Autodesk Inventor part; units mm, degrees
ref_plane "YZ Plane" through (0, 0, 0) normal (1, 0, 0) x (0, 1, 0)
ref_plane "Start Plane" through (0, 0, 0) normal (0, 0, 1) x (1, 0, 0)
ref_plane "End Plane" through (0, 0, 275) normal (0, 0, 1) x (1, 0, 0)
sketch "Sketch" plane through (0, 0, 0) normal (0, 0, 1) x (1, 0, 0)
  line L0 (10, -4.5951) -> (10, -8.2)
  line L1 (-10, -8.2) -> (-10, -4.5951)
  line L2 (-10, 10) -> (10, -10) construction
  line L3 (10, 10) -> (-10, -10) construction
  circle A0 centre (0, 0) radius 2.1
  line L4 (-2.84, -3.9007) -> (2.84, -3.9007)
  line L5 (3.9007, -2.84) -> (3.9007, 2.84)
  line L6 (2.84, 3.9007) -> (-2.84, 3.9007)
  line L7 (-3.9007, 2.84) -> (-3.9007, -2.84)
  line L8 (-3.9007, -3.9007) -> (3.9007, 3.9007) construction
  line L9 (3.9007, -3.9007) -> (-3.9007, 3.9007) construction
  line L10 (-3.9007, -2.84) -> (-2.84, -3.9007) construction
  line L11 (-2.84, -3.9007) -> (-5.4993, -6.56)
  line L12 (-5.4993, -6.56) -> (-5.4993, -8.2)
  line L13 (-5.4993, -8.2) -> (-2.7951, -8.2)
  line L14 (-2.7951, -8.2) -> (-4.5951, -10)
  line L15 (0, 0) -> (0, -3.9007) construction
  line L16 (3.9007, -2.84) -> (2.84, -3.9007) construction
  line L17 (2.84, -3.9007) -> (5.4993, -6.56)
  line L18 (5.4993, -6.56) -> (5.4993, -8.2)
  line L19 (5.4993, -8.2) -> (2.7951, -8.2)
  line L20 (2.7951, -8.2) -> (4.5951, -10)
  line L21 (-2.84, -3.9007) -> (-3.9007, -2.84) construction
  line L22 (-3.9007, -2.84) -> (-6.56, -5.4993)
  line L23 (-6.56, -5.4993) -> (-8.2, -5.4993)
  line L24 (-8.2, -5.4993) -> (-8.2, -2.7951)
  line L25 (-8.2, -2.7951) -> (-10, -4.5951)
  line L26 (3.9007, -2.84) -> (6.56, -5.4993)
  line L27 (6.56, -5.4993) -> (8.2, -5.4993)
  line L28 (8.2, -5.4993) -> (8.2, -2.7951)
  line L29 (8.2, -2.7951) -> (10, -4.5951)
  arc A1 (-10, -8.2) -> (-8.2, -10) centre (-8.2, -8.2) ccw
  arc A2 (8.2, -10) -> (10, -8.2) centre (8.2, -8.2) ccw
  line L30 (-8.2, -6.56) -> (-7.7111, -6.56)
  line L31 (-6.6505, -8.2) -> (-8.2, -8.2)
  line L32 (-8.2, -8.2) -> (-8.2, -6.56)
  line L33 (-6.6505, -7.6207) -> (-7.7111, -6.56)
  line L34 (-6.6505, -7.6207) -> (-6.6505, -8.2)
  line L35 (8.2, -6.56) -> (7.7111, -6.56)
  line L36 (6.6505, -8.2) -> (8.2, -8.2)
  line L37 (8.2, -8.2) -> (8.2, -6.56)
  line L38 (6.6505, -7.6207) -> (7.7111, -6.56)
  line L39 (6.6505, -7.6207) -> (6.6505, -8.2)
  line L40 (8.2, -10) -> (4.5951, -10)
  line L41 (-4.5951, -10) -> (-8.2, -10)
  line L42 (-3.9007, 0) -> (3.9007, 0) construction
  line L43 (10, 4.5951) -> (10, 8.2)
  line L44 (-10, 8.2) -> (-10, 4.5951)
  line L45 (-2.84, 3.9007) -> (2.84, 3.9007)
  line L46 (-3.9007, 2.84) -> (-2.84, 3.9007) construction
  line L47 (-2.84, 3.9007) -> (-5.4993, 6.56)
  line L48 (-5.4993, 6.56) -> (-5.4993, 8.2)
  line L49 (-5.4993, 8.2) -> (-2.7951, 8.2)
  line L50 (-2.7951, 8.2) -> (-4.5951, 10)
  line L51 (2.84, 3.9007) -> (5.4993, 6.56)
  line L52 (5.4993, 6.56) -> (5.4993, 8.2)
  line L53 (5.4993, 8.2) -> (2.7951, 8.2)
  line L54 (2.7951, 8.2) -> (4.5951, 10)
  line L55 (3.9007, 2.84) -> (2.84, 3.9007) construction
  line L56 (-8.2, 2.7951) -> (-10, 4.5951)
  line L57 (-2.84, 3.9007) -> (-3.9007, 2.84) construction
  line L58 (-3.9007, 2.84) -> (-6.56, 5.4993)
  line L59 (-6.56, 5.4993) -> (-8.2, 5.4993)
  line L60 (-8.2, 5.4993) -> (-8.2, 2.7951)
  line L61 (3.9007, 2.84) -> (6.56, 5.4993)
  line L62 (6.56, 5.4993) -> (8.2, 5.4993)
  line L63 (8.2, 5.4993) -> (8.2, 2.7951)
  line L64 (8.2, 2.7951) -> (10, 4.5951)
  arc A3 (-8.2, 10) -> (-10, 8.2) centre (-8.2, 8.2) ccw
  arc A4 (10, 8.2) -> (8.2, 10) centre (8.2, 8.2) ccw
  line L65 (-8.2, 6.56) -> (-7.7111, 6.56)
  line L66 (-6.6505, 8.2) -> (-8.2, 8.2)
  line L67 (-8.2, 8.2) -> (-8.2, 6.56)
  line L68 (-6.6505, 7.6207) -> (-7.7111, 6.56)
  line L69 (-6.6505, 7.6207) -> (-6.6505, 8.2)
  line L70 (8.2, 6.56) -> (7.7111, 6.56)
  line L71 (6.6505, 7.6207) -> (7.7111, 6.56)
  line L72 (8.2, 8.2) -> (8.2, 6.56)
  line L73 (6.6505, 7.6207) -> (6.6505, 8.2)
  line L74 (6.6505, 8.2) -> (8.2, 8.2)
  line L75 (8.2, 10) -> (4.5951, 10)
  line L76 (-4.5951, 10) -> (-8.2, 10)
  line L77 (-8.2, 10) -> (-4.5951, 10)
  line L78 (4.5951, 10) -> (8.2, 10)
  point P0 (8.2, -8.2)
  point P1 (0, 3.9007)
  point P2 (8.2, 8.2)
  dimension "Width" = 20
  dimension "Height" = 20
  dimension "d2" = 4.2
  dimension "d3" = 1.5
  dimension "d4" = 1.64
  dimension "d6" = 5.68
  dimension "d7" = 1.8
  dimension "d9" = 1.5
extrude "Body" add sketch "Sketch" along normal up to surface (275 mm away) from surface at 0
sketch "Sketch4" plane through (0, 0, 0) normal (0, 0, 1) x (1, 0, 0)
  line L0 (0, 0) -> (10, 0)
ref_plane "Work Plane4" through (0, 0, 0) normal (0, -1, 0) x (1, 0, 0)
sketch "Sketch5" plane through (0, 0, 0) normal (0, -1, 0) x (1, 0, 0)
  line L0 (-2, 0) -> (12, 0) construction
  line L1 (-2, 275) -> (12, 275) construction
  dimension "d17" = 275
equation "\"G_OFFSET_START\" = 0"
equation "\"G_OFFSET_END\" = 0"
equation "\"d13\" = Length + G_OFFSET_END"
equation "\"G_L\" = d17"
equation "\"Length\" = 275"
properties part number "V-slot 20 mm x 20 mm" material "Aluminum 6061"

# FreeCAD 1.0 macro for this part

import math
import FreeCAD as App
import Part
import Sketcher

V = App.Vector

doc = App.newDocument("Part")
body = doc.addObject("PartDesign::Body", "Body")

# Sketch on XY plane
sketch1 = doc.addObject("Sketcher::SketchObject", "Sketch")
body.addObject(sketch1)
sketch1.AttachmentSupport = (doc.XY_Plane, [""])
sketch1.MapMode = "FlatFace"
sketch1.addGeometry([
    Part.LineSegment(V(10, -8.2, 0), V(10, -4.5951, 0)),  # 0
    Part.LineSegment(V(10, -4.5951, 0), V(8.2, -2.7951, 0)),  # 1
    Part.LineSegment(V(8.2, -2.7951, 0), V(8.2, -5.4993, 0)),  # 2
    Part.LineSegment(V(8.2, -5.4993, 0), V(6.56, -5.4993, 0)),  # 3
    Part.LineSegment(V(6.56, -5.4993, 0), V(3.9007, -2.84, 0)),  # 4
    Part.LineSegment(V(3.9007, -2.84, 0), V(3.9007, 2.84, 0)),  # 5
    Part.LineSegment(V(3.9007, 2.84, 0), V(6.56, 5.4993, 0)),  # 6
    Part.LineSegment(V(6.56, 5.4993, 0), V(8.2, 5.4993, 0)),  # 7
    Part.LineSegment(V(8.2, 5.4993, 0), V(8.2, 2.7951, 0)),  # 8
    Part.LineSegment(V(8.2, 2.7951, 0), V(10, 4.5951, 0)),  # 9
    Part.LineSegment(V(10, 4.5951, 0), V(10, 8.2, 0)),  # 10
    Part.ArcOfCircle(Part.Circle(V(8.2, 8.2, 0), V(0, 0, 1), 1.8), math.radians(0), math.radians(90)),  # 11
    Part.LineSegment(V(8.2, 10, 0), V(4.5951, 10, 0)),  # 12
    Part.LineSegment(V(4.5951, 10, 0), V(2.7951, 8.2, 0)),  # 13
    Part.LineSegment(V(2.7951, 8.2, 0), V(5.4993, 8.2, 0)),  # 14
    Part.LineSegment(V(5.4993, 8.2, 0), V(5.4993, 6.56, 0)),  # 15
    Part.LineSegment(V(5.4993, 6.56, 0), V(2.84, 3.9007, 0)),  # 16
    Part.LineSegment(V(2.84, 3.9007, 0), V(-2.84, 3.9007, 0)),  # 17
    Part.LineSegment(V(-2.84, 3.9007, 0), V(-5.4993, 6.56, 0)),  # 18
    Part.LineSegment(V(-5.4993, 6.56, 0), V(-5.4993, 8.2, 0)),  # 19
    Part.LineSegment(V(-5.4993, 8.2, 0), V(-2.7951, 8.2, 0)),  # 20
    Part.LineSegment(V(-2.7951, 8.2, 0), V(-4.5951, 10, 0)),  # 21
    Part.LineSegment(V(-4.5951, 10, 0), V(-8.2, 10, 0)),  # 22
    Part.ArcOfCircle(Part.Circle(V(-8.2, 8.2, 0), V(0, 0, 1), 1.8), math.radians(90), math.radians(180)),  # 23
    Part.LineSegment(V(-10, 8.2, 0), V(-10, 4.5951, 0)),  # 24
    Part.LineSegment(V(-10, 4.5951, 0), V(-8.2, 2.7951, 0)),  # 25
    Part.LineSegment(V(-8.2, 2.7951, 0), V(-8.2, 5.4993, 0)),  # 26
    Part.LineSegment(V(-8.2, 5.4993, 0), V(-6.56, 5.4993, 0)),  # 27
    Part.LineSegment(V(-6.56, 5.4993, 0), V(-3.9007, 2.84, 0)),  # 28
    Part.LineSegment(V(-3.9007, 2.84, 0), V(-3.9007, -2.84, 0)),  # 29
    Part.LineSegment(V(-3.9007, -2.84, 0), V(-6.56, -5.4993, 0)),  # 30
    Part.LineSegment(V(-6.56, -5.4993, 0), V(-8.2, -5.4993, 0)),  # 31
    Part.LineSegment(V(-8.2, -5.4993, 0), V(-8.2, -2.7951, 0)),  # 32
    Part.LineSegment(V(-8.2, -2.7951, 0), V(-10, -4.5951, 0)),  # 33
    Part.LineSegment(V(-10, -4.5951, 0), V(-10, -8.2, 0)),  # 34
    Part.ArcOfCircle(Part.Circle(V(-8.2, -8.2, 0), V(0, 0, 1), 1.8), math.radians(180), math.radians(270)),  # 35
    Part.LineSegment(V(-8.2, -10, 0), V(-4.5951, -10, 0)),  # 36
    Part.LineSegment(V(-4.5951, -10, 0), V(-2.7951, -8.2, 0)),  # 37
    Part.LineSegment(V(-2.7951, -8.2, 0), V(-5.4993, -8.2, 0)),  # 38
    Part.LineSegment(V(-5.4993, -8.2, 0), V(-5.4993, -6.56, 0)),  # 39
    Part.LineSegment(V(-5.4993, -6.56, 0), V(-2.84, -3.9007, 0)),  # 40
    Part.LineSegment(V(-2.84, -3.9007, 0), V(2.84, -3.9007, 0)),  # 41
    Part.LineSegment(V(2.84, -3.9007, 0), V(5.4993, -6.56, 0)),  # 42
    Part.LineSegment(V(5.4993, -6.56, 0), V(5.4993, -8.2, 0)),  # 43
    Part.LineSegment(V(5.4993, -8.2, 0), V(2.7951, -8.2, 0)),  # 44
    Part.LineSegment(V(2.7951, -8.2, 0), V(4.5951, -10, 0)),  # 45
    Part.LineSegment(V(4.5951, -10, 0), V(8.2, -10, 0)),  # 46
    Part.ArcOfCircle(Part.Circle(V(8.2, -8.2, 0), V(0, 0, 1), 1.8), math.radians(-90), math.radians(0)),  # 47
    Part.LineSegment(V(-8.2, -8.2, 0), V(-8.2, -6.56, 0)),  # 48
    Part.LineSegment(V(-8.2, -6.56, 0), V(-7.7111, -6.56, 0)),  # 49
    Part.LineSegment(V(-7.7111, -6.56, 0), V(-6.6505, -7.6207, 0)),  # 50
    Part.LineSegment(V(-6.6505, -7.6207, 0), V(-6.6505, -8.2, 0)),  # 51
    Part.LineSegment(V(-6.6505, -8.2, 0), V(-8.2, -8.2, 0)),  # 52
    Part.LineSegment(V(7.7111, -6.56, 0), V(8.2, -6.56, 0)),  # 53
    Part.LineSegment(V(8.2, -6.56, 0), V(8.2, -8.2, 0)),  # 54
    Part.LineSegment(V(8.2, -8.2, 0), V(6.6505, -8.2, 0)),  # 55
    Part.LineSegment(V(6.6505, -8.2, 0), V(6.6505, -7.6207, 0)),  # 56
    Part.LineSegment(V(6.6505, -7.6207, 0), V(7.7111, -6.56, 0)),  # 57
    Part.LineSegment(V(-7.7111, 6.56, 0), V(-8.2, 6.56, 0)),  # 58
    Part.LineSegment(V(-8.2, 6.56, 0), V(-8.2, 8.2, 0)),  # 59
    Part.LineSegment(V(-8.2, 8.2, 0), V(-6.6505, 8.2, 0)),  # 60
    Part.LineSegment(V(-6.6505, 8.2, 0), V(-6.6505, 7.6207, 0)),  # 61
    Part.LineSegment(V(-6.6505, 7.6207, 0), V(-7.7111, 6.56, 0)),  # 62
    Part.Circle(V(0, 0, 0), V(0, 0, 1), 2.1),  # 63
    Part.LineSegment(V(8.2, 8.2, 0), V(8.2, 6.56, 0)),  # 64
    Part.LineSegment(V(8.2, 6.56, 0), V(7.7111, 6.56, 0)),  # 65
    Part.LineSegment(V(7.7111, 6.56, 0), V(6.6505, 7.6207, 0)),  # 66
    Part.LineSegment(V(6.6505, 7.6207, 0), V(6.6505, 8.2, 0)),  # 67
    Part.LineSegment(V(6.6505, 8.2, 0), V(8.2, 8.2, 0)),  # 68
], False)
sketch1.addConstraint([
    Sketcher.Constraint("Coincident", 0, 2, 1, 1),
    Sketcher.Constraint("Coincident", 1, 2, 2, 1),
    Sketcher.Constraint("Coincident", 2, 2, 3, 1),
    Sketcher.Constraint("Coincident", 3, 2, 4, 1),
    Sketcher.Constraint("Coincident", 4, 2, 5, 1),
    Sketcher.Constraint("Coincident", 5, 2, 6, 1),
    Sketcher.Constraint("Coincident", 6, 2, 7, 1),
    Sketcher.Constraint("Coincident", 7, 2, 8, 1),
    Sketcher.Constraint("Coincident", 8, 2, 9, 1),
    Sketcher.Constraint("Coincident", 9, 2, 10, 1),
    Sketcher.Constraint("Tangent", 10, 2, 11, 1),
    Sketcher.Constraint("Tangent", 11, 2, 12, 1),
    Sketcher.Constraint("Coincident", 12, 2, 13, 1),
    Sketcher.Constraint("Coincident", 13, 2, 14, 1),
    Sketcher.Constraint("Coincident", 14, 2, 15, 1),
    Sketcher.Constraint("Coincident", 15, 2, 16, 1),
    Sketcher.Constraint("Coincident", 16, 2, 17, 1),
    Sketcher.Constraint("Coincident", 17, 2, 18, 1),
    Sketcher.Constraint("Coincident", 18, 2, 19, 1),
    Sketcher.Constraint("Coincident", 19, 2, 20, 1),
    Sketcher.Constraint("Coincident", 20, 2, 21, 1),
    Sketcher.Constraint("Coincident", 21, 2, 22, 1),
    Sketcher.Constraint("Tangent", 22, 2, 23, 1),
    Sketcher.Constraint("Tangent", 23, 2, 24, 1),
    Sketcher.Constraint("Coincident", 24, 2, 25, 1),
    Sketcher.Constraint("Coincident", 25, 2, 26, 1),
    Sketcher.Constraint("Coincident", 26, 2, 27, 1),
    Sketcher.Constraint("Coincident", 27, 2, 28, 1),
    Sketcher.Constraint("Coincident", 28, 2, 29, 1),
    Sketcher.Constraint("Coincident", 29, 2, 30, 1),
    Sketcher.Constraint("Coincident", 30, 2, 31, 1),
    Sketcher.Constraint("Coincident", 31, 2, 32, 1),
    Sketcher.Constraint("Coincident", 32, 2, 33, 1),
    Sketcher.Constraint("Coincident", 33, 2, 34, 1),
    Sketcher.Constraint("Tangent", 34, 2, 35, 1),
    Sketcher.Constraint("Tangent", 35, 2, 36, 1),
    Sketcher.Constraint("Coincident", 36, 2, 37, 1),
    Sketcher.Constraint("Coincident", 37, 2, 38, 1),
    Sketcher.Constraint("Coincident", 38, 2, 39, 1),
    Sketcher.Constraint("Coincident", 39, 2, 40, 1),
    Sketcher.Constraint("Coincident", 40, 2, 41, 1),
    Sketcher.Constraint("Coincident", 41, 2, 42, 1),
    Sketcher.Constraint("Coincident", 42, 2, 43, 1),
    Sketcher.Constraint("Coincident", 43, 2, 44, 1),
    Sketcher.Constraint("Coincident", 44, 2, 45, 1),
    Sketcher.Constraint("Coincident", 45, 2, 46, 1),
    Sketcher.Constraint("Tangent", 46, 2, 47, 1),
    Sketcher.Constraint("Tangent", 47, 2, 0, 1),
    Sketcher.Constraint("Coincident", 48, 2, 49, 1),
    Sketcher.Constraint("Coincident", 49, 2, 50, 1),
    Sketcher.Constraint("Coincident", 50, 2, 51, 1),
    Sketcher.Constraint("Coincident", 51, 2, 52, 1),
    Sketcher.Constraint("Coincident", 52, 2, 48, 1),
    Sketcher.Constraint("Coincident", 53, 2, 54, 1),
    Sketcher.Constraint("Coincident", 54, 2, 55, 1),
    Sketcher.Constraint("Coincident", 55, 2, 56, 1),
    Sketcher.Constraint("Coincident", 56, 2, 57, 1),
    Sketcher.Constraint("Coincident", 57, 2, 53, 1),
    Sketcher.Constraint("Coincident", 58, 2, 59, 1),
    Sketcher.Constraint("Coincident", 59, 2, 60, 1),
    Sketcher.Constraint("Coincident", 60, 2, 61, 1),
    Sketcher.Constraint("Coincident", 61, 2, 62, 1),
    Sketcher.Constraint("Coincident", 62, 2, 58, 1),
    Sketcher.Constraint("Coincident", 64, 2, 65, 1),
    Sketcher.Constraint("Coincident", 65, 2, 66, 1),
    Sketcher.Constraint("Coincident", 66, 2, 67, 1),
    Sketcher.Constraint("Coincident", 67, 2, 68, 1),
    Sketcher.Constraint("Coincident", 68, 2, 64, 1),
    Sketcher.Constraint("Vertical", 0),
    Sketcher.Constraint("Vertical", 2),
    Sketcher.Constraint("Horizontal", 3),
    Sketcher.Constraint("Vertical", 5),
    Sketcher.Constraint("Horizontal", 7),
    Sketcher.Constraint("Vertical", 8),
    Sketcher.Constraint("Vertical", 10),
    Sketcher.Constraint("Horizontal", 12),
    Sketcher.Constraint("Horizontal", 14),
    Sketcher.Constraint("Vertical", 15),
    Sketcher.Constraint("Horizontal", 17),
    Sketcher.Constraint("Vertical", 19),
    Sketcher.Constraint("Horizontal", 20),
    Sketcher.Constraint("Horizontal", 22),
    Sketcher.Constraint("Vertical", 24),
    Sketcher.Constraint("Vertical", 26),
    Sketcher.Constraint("Horizontal", 27),
    Sketcher.Constraint("Vertical", 29),
    Sketcher.Constraint("Horizontal", 31),
    Sketcher.Constraint("Vertical", 32),
    Sketcher.Constraint("Vertical", 34),
    Sketcher.Constraint("Horizontal", 36),
    Sketcher.Constraint("Horizontal", 38),
    Sketcher.Constraint("Vertical", 39),
    Sketcher.Constraint("Horizontal", 41),
    Sketcher.Constraint("Vertical", 43),
    Sketcher.Constraint("Horizontal", 44),
    Sketcher.Constraint("Horizontal", 46),
    Sketcher.Constraint("Vertical", 48),
    Sketcher.Constraint("Horizontal", 49),
    Sketcher.Constraint("Vertical", 51),
    Sketcher.Constraint("Horizontal", 52),
    Sketcher.Constraint("Horizontal", 53),
    Sketcher.Constraint("Vertical", 54),
    Sketcher.Constraint("Horizontal", 55),
    Sketcher.Constraint("Vertical", 56),
    Sketcher.Constraint("Horizontal", 58),
    Sketcher.Constraint("Vertical", 59),
    Sketcher.Constraint("Horizontal", 60),
    Sketcher.Constraint("Vertical", 61),
    Sketcher.Constraint("Vertical", 64),
    Sketcher.Constraint("Horizontal", 65),
    Sketcher.Constraint("Vertical", 67),
    Sketcher.Constraint("Horizontal", 68),
    Sketcher.Constraint("Coincident", 63, 3, -1, 1),
    Sketcher.Constraint("Coincident", 52, 2, 35, 3),
    Sketcher.Constraint("Coincident", 54, 2, 47, 3),
    Sketcher.Constraint("Coincident", 59, 2, 23, 3),
    Sketcher.Constraint("Coincident", 68, 2, 11, 3),
    Sketcher.Constraint("Equal", 11, 23),
    Sketcher.Constraint("Equal", 23, 35),
    Sketcher.Constraint("Equal", 35, 47),
    Sketcher.Constraint("Symmetric", 11, 3, 35, 3, -1, 1),
    Sketcher.Constraint("Symmetric", 23, 3, 47, 3, -1, 1),
    Sketcher.Constraint("Symmetric", 1, 2, 25, 2, -1, 1),
    Sketcher.Constraint("Symmetric", 3, 2, 27, 2, -1, 1),
    Sketcher.Constraint("Symmetric", 4, 2, 28, 2, -1, 1),
    Sketcher.Constraint("Symmetric", 6, 2, 30, 2, -1, 1),
    Sketcher.Constraint("Symmetric", 8, 2, 32, 2, -1, 1),
    Sketcher.Constraint("Symmetric", 13, 2, 37, 2, -1, 1),
    Sketcher.Constraint("Symmetric", 15, 2, 39, 2, -1, 1),
    Sketcher.Constraint("Symmetric", 16, 2, 40, 2, -1, 1),
    Sketcher.Constraint("Symmetric", 18, 2, 42, 2, -1, 1),
    Sketcher.Constraint("Symmetric", 20, 2, 44, 2, -1, 1),
    Sketcher.Constraint("Symmetric", 56, 2, 61, 2, -1, 1),
    Sketcher.Constraint("Symmetric", 57, 2, 62, 2, -1, 1),
    Sketcher.Constraint("Symmetric", 49, 2, 65, 2, -1, 1),
    Sketcher.Constraint("Symmetric", 50, 2, 66, 2, -1, 1),
    Sketcher.Constraint("Symmetric", 11, 3, 23, 3, -2),
    Sketcher.Constraint("Symmetric", 15, 2, 18, 2, -2),
    Sketcher.Constraint("Symmetric", 13, 2, 20, 2, -2),
    Sketcher.Constraint("Symmetric", 8, 2, 25, 2, -2),
    Sketcher.Constraint("Symmetric", 6, 2, 27, 2, -2),
    Sketcher.Constraint("Symmetric", 50, 2, 56, 2, -2),
    Sketcher.Constraint("Symmetric", 49, 2, 57, 2, -2),
    Sketcher.Constraint("Parallel", 1, 4),
    Sketcher.Constraint("Perpendicular", 4, 6),
    Sketcher.Constraint("Parallel", 6, 9),
    Sketcher.Constraint("Parallel", 9, 13),
    Sketcher.Constraint("Parallel", 13, 16),
    Sketcher.Constraint("Perpendicular", 16, 18),
    Sketcher.Constraint("Parallel", 18, 21),
    Sketcher.Constraint("Parallel", 21, 25),
    Sketcher.Constraint("Perpendicular", 28, 30),
    Sketcher.Constraint("Parallel", 30, 33),
    Sketcher.Constraint("Parallel", 33, 37),
    Sketcher.Constraint("Perpendicular", 40, 42),
    Sketcher.Constraint("Parallel", 42, 45),
    Sketcher.Constraint("Parallel", 45, 50),
    Sketcher.Constraint("Perpendicular", 50, 57),
    Sketcher.Constraint("Horizontal", 10, 2, 13, 2),
    Sketcher.Constraint("Horizontal", 42, 2, 48, 2),
    Sketcher.Constraint("Vertical", 47, 3, 1, 2),
    Sketcher.Constraint("Equal", 46, 0),
    Sketcher.Constraint("Equal", 44, 2),
    Sketcher.Constraint("Equal", 41, 5),
    Sketcher.Constraint("Equal", 31, 15),
    Sketcher.Constraint("Equal", 6, 16),
    Sketcher.Constraint("Diameter", 63, 4.2),
    Sketcher.Constraint("Radius", 11, 1.8),
    Sketcher.Constraint("Distance", 50, 1.5),
    Sketcher.Constraint("DistanceX", 3, 2, 3, 1, 1.64),
    Sketcher.Constraint("DistanceX", 17, 2, 17, 1, 5.68),
    Sketcher.Constraint("DistanceX", -1, 1, 0, 2, 10.0),
    Sketcher.Constraint("DistanceX", 12, 2, 12, 1, 3.605),
    Sketcher.Constraint("DistanceX", 49, 1, 49, 2, 0.489),
    Sketcher.Constraint("DistanceX", 14, 1, 14, 2, 2.7042),
])
pad1 = doc.addObject("PartDesign::Pad", "Pad")
body.addObject(pad1)
pad1.Profile = sketch1
pad1.Length = 275

doc.recompute()
